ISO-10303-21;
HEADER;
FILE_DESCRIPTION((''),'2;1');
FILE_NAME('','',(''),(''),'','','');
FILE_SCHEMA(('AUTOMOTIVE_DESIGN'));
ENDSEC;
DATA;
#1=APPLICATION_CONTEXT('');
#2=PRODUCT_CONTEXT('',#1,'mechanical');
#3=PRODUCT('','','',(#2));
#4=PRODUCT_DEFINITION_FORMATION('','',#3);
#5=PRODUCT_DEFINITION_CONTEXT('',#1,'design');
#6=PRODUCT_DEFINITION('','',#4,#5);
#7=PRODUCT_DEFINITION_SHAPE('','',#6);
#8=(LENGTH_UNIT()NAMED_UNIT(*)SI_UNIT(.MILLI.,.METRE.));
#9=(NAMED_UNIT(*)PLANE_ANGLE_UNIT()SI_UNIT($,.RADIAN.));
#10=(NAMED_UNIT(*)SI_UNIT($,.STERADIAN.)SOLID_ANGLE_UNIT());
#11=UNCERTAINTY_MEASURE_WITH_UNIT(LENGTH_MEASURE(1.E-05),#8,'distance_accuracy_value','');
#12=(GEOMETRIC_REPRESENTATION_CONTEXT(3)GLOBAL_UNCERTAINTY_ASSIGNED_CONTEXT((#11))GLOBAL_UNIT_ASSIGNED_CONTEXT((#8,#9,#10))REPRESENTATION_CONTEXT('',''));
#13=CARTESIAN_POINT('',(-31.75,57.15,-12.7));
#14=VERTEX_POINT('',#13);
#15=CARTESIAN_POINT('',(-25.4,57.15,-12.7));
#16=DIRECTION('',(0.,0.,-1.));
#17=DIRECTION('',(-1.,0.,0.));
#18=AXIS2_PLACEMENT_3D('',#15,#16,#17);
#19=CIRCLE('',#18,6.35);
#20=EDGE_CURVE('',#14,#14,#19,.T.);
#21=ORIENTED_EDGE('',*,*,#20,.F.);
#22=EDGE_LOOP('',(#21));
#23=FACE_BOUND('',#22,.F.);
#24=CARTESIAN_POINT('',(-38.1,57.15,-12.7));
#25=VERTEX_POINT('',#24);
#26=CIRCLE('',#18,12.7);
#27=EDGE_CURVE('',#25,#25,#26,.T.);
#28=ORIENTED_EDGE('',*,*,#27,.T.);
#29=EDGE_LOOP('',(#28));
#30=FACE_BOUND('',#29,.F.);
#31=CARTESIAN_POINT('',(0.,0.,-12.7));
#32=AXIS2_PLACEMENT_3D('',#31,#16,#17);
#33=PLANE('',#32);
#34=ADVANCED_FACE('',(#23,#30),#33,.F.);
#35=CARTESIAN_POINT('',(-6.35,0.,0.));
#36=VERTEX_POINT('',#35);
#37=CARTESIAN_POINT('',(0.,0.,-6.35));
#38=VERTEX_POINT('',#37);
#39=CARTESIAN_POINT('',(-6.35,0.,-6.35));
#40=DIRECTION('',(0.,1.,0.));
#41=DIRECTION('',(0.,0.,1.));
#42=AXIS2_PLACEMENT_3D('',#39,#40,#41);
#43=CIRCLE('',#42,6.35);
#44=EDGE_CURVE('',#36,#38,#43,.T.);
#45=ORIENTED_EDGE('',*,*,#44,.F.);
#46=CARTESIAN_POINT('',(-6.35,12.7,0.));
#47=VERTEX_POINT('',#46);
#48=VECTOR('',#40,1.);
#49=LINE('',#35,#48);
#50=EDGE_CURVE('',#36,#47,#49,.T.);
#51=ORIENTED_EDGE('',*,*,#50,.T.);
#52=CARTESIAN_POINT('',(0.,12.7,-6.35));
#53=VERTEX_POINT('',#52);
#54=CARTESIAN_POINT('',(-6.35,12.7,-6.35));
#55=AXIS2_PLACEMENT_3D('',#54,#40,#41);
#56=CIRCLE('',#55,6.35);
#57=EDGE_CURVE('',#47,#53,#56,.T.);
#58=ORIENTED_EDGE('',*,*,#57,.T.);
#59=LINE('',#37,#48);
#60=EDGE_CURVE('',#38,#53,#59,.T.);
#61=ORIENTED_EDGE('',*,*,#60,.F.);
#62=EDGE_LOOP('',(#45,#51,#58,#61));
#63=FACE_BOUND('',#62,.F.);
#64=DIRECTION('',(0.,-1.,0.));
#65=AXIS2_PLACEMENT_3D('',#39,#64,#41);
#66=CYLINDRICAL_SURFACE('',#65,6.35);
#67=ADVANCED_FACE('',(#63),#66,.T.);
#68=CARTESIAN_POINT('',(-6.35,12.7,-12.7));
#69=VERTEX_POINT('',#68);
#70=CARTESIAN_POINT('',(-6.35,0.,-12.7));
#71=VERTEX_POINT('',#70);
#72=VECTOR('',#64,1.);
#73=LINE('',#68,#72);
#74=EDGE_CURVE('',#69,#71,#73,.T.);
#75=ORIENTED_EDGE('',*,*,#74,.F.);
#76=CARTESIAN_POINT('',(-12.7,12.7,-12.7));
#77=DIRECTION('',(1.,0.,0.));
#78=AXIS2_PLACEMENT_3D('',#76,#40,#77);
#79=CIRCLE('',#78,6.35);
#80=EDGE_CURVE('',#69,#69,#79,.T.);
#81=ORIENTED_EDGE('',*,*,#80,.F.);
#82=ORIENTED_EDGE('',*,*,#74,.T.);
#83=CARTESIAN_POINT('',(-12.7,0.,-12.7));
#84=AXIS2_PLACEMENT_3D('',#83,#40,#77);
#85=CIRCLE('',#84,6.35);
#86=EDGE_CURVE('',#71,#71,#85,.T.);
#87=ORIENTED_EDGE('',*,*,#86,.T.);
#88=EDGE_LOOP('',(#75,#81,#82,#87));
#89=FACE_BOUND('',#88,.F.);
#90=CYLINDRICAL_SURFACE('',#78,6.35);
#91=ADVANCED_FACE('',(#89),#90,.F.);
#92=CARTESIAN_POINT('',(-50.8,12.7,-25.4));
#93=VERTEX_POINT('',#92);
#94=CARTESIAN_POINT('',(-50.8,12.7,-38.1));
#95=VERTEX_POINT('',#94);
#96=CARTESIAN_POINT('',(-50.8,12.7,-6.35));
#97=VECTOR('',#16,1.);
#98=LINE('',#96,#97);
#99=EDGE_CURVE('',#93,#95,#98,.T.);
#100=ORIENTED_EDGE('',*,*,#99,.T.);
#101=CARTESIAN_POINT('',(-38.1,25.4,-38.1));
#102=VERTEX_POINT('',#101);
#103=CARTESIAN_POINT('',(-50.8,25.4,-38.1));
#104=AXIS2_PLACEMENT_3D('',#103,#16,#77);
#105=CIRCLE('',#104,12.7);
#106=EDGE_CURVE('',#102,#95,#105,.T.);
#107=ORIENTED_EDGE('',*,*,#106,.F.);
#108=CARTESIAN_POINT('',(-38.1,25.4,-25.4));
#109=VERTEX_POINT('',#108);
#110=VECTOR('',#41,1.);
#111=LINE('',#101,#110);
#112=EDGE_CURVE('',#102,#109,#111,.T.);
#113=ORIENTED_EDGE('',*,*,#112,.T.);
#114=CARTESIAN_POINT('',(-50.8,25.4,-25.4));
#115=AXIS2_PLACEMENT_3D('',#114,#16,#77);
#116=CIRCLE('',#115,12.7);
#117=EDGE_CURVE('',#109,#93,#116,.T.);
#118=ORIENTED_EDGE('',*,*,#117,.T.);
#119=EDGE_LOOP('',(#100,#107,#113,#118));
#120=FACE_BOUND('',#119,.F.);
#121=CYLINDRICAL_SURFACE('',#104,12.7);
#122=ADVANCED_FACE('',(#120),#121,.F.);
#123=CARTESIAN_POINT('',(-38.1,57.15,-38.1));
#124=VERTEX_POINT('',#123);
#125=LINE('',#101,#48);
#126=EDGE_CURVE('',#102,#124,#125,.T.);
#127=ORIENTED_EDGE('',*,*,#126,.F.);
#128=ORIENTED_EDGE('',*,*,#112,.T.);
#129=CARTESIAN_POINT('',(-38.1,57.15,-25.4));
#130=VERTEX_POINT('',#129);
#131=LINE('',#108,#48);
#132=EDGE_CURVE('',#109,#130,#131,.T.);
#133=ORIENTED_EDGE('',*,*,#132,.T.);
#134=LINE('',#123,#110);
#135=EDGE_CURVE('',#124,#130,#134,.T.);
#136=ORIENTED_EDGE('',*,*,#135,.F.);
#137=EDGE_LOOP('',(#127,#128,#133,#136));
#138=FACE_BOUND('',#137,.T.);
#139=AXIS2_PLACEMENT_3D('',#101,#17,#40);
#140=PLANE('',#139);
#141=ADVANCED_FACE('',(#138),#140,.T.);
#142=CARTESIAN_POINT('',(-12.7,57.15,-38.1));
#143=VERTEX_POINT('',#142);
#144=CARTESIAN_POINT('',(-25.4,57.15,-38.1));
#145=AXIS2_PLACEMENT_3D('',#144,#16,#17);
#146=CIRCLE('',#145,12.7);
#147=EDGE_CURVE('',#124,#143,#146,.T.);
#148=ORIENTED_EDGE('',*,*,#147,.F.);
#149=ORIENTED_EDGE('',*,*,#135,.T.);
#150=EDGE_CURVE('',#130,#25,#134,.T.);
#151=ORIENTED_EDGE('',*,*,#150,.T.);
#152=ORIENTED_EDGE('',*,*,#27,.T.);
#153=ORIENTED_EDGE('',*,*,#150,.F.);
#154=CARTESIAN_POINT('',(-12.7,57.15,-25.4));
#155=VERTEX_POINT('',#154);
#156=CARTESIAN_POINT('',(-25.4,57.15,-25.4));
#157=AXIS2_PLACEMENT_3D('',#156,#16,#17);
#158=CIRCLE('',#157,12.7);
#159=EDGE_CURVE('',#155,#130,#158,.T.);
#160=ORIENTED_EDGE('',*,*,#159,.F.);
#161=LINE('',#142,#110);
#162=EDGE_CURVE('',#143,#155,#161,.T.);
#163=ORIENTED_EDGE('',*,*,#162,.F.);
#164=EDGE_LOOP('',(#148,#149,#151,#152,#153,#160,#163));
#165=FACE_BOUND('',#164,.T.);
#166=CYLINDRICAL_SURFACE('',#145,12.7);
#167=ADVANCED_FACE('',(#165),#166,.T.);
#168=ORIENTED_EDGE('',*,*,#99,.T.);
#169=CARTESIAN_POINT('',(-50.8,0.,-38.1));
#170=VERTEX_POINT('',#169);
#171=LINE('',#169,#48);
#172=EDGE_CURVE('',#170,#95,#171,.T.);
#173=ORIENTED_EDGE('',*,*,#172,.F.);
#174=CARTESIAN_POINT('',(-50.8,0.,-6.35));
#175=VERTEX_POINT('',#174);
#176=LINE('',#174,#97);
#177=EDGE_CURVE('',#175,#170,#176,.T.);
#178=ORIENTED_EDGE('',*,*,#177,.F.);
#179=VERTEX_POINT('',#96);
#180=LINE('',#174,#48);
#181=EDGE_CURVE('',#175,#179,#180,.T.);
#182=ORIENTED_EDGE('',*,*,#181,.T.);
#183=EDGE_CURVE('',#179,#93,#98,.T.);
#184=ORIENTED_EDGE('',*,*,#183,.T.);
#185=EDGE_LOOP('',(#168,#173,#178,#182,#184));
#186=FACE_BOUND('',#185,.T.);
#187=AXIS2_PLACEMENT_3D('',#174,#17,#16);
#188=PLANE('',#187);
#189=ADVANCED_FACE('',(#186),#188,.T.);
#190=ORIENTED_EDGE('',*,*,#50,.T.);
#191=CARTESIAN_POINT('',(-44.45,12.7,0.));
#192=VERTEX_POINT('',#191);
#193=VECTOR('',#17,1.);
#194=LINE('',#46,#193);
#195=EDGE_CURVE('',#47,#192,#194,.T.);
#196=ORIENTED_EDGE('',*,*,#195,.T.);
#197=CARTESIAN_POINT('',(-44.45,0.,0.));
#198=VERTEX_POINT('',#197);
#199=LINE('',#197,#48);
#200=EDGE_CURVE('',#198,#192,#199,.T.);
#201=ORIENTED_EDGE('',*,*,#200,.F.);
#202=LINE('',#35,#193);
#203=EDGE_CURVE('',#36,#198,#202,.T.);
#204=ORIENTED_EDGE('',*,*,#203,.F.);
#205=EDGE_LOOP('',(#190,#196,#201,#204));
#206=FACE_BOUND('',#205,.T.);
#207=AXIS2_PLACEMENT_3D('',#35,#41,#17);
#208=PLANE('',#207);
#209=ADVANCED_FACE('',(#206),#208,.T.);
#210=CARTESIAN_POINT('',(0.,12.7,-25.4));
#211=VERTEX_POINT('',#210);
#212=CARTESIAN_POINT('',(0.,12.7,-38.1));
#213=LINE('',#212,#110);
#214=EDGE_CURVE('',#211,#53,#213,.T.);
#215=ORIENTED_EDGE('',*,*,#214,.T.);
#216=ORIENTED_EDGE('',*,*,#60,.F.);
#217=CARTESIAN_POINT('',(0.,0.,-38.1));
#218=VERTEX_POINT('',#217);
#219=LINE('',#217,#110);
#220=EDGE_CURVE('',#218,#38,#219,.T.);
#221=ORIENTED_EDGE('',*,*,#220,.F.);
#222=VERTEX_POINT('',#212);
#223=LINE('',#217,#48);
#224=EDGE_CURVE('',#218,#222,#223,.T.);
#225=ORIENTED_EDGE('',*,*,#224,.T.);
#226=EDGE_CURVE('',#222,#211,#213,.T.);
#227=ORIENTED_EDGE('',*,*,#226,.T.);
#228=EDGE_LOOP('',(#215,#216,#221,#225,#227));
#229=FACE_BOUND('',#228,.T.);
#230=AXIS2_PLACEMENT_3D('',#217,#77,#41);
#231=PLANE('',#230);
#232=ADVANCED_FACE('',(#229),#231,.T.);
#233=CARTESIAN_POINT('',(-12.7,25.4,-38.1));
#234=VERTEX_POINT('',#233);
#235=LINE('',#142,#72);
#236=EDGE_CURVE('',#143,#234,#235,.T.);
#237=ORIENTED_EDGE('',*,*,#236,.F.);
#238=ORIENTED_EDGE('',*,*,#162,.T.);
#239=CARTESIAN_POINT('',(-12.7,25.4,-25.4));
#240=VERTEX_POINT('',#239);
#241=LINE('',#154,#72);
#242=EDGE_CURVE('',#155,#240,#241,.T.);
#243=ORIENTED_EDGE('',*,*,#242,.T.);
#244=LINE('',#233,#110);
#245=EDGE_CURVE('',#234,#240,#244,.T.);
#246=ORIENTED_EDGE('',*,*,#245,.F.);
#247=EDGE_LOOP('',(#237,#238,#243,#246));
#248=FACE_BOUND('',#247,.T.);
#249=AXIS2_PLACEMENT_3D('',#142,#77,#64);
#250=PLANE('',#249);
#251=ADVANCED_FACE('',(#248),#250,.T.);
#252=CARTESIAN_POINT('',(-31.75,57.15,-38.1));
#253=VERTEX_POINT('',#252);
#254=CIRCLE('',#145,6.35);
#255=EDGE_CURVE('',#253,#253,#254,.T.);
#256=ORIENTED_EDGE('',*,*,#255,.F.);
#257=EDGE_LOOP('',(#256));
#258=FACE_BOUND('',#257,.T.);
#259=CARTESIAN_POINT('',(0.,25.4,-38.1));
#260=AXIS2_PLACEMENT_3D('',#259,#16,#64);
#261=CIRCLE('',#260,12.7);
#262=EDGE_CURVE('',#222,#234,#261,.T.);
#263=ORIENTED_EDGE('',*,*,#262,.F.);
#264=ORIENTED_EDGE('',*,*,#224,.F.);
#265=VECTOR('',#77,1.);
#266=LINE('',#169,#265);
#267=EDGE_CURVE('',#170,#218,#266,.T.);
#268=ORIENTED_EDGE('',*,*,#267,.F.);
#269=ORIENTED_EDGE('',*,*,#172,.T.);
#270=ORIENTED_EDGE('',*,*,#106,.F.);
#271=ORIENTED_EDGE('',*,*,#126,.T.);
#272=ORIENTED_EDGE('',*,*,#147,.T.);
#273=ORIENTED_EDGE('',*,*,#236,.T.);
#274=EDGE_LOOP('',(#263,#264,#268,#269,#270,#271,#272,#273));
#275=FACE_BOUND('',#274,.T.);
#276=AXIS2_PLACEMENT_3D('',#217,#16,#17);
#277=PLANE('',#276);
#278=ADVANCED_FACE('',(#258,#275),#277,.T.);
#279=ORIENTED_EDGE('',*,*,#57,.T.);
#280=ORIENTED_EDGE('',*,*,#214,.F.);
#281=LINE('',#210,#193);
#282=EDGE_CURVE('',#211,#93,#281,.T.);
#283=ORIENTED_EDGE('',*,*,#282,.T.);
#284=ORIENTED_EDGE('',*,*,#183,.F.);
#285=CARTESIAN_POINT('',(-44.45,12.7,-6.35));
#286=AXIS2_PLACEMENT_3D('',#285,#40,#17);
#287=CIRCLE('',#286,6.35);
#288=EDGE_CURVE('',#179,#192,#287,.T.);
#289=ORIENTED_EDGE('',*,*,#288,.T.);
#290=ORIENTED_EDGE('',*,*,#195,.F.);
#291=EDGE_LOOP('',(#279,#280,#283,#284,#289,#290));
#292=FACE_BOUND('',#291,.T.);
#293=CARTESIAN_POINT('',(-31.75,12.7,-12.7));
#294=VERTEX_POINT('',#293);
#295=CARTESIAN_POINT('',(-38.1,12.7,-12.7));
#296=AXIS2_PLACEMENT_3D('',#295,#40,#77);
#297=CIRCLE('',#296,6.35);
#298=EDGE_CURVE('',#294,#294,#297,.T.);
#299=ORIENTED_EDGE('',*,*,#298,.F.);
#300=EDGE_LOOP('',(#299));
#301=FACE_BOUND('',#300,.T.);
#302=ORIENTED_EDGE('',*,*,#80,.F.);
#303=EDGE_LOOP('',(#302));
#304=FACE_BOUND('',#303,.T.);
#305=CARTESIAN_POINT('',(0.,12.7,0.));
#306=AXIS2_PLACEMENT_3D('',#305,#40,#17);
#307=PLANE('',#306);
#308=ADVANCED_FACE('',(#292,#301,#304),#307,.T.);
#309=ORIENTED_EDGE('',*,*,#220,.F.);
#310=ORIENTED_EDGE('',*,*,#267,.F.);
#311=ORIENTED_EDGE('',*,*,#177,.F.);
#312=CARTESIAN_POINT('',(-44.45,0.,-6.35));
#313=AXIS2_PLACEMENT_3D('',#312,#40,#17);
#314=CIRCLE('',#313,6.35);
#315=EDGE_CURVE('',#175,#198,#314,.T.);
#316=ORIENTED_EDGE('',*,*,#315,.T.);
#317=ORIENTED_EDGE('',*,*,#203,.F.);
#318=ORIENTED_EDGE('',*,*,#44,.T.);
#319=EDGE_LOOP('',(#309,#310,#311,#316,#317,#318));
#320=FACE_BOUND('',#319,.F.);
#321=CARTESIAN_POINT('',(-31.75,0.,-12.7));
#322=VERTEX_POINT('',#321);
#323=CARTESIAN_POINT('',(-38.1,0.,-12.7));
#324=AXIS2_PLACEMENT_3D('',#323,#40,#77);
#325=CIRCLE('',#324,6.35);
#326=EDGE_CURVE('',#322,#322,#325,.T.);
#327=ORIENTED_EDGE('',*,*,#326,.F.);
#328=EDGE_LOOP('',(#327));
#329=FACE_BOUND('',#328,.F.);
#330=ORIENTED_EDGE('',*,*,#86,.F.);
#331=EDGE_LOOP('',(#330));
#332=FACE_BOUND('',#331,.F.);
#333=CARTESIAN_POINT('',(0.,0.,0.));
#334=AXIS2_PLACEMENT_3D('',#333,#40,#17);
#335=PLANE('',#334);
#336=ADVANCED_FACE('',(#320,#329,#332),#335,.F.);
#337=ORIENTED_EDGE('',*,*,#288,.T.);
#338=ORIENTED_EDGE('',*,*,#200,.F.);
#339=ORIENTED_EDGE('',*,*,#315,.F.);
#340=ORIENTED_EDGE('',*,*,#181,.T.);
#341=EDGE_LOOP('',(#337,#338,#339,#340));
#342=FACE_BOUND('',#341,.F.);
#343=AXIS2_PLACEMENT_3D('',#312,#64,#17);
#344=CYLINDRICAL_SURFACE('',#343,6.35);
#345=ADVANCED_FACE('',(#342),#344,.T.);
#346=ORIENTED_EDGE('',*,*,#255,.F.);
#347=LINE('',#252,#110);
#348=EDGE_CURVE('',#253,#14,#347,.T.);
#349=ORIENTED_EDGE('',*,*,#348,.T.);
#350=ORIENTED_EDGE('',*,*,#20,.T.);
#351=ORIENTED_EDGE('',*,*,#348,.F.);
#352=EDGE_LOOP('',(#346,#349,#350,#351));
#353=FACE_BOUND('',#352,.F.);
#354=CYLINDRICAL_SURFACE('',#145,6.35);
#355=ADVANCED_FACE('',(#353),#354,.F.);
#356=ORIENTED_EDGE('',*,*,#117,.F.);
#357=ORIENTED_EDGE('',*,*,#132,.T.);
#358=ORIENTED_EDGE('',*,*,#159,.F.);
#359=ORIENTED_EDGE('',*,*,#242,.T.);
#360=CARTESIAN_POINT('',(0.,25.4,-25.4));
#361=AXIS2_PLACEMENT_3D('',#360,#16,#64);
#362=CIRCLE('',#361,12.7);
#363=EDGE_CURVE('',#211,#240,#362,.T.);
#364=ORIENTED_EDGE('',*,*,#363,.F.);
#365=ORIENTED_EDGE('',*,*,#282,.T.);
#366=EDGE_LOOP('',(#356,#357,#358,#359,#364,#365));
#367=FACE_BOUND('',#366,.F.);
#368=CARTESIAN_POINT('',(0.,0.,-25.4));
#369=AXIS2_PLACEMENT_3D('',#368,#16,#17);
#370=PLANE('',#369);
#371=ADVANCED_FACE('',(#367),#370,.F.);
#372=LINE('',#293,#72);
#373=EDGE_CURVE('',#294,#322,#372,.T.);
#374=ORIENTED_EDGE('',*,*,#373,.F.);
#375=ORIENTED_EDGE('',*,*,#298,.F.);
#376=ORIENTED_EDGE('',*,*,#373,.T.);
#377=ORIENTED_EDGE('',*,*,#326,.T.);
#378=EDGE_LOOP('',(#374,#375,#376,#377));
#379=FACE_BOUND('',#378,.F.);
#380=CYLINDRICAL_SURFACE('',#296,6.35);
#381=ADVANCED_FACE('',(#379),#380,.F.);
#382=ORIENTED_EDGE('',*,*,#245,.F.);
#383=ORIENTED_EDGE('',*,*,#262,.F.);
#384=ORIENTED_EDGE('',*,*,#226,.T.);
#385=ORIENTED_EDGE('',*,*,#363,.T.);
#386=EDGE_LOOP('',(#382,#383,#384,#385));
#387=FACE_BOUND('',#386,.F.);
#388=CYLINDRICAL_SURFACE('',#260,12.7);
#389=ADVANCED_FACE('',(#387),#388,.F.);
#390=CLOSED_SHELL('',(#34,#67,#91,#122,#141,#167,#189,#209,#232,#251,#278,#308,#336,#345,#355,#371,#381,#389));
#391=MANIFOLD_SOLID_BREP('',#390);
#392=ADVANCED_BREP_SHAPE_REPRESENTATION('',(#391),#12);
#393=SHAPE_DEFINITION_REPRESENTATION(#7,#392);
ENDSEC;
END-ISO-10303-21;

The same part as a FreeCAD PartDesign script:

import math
import FreeCAD as App
import Part
import Sketcher
from FreeCAD import Vector
Q = App.Units.Quantity

doc = App.newDocument("Part")
body = doc.addObject("PartDesign::Body", "Body")

# Sketch on XZ plane
sketch1 = body.newObject("Sketcher::SketchObject", "Sketch")
sketch1.AttachmentSupport = (doc.getObject("XZ_Plane"), [""])
sketch1.MapMode = "FlatFace"
sketch1.addGeometry(Part.LineSegment(Vector(-44.45, 0, 0), Vector(-6.35, 0, 0)), False)
sketch1.addGeometry(Part.ArcOfCircle(Part.Circle(Vector(-6.35, -6.35, 0), Vector(0, 0, 1), 6.35), math.radians(0), math.radians(90)), False)
sketch1.addGeometry(Part.LineSegment(Vector(0, -6.35, 0), Vector(0, -38.1, 0)), False)
sketch1.addGeometry(Part.LineSegment(Vector(0, -38.1, 0), Vector(-50.8, -38.1, 0)), False)
sketch1.addGeometry(Part.LineSegment(Vector(-50.8, -38.1, 0), Vector(-50.8, -6.35, 0)), False)
sketch1.addGeometry(Part.ArcOfCircle(Part.Circle(Vector(-44.45, -6.35, 0), Vector(0, 0, 1), 6.35), math.radians(90), math.radians(180)), False)
sketch1.addConstraint(Sketcher.Constraint("Tangent", 0, 2, 1, 2))
sketch1.addConstraint(Sketcher.Constraint("Tangent", 1, 1, 2, 1))
sketch1.addConstraint(Sketcher.Constraint("Coincident", 2, 2, 3, 1))
sketch1.addConstraint(Sketcher.Constraint("Coincident", 3, 2, 4, 1))
sketch1.addConstraint(Sketcher.Constraint("Tangent", 4, 2, 5, 2))
sketch1.addConstraint(Sketcher.Constraint("Tangent", 5, 1, 0, 1))
sketch1.addConstraint(Sketcher.Constraint("Horizontal", 0))
sketch1.addConstraint(Sketcher.Constraint("Vertical", 2))
sketch1.addConstraint(Sketcher.Constraint("Horizontal", 3))
sketch1.addConstraint(Sketcher.Constraint("Vertical", 4))
sketch1.addConstraint(Sketcher.Constraint("Equal", 1, 5))
sketch1.addConstraint(Sketcher.Constraint("PointOnObject", 0, 2, -1))
sketch1.addConstraint(Sketcher.Constraint("PointOnObject", 1, 1, -2))
sketch1.addConstraint(Sketcher.Constraint("DistanceX", 3, 2, 3, 1, Q("2 in")))
sketch1.addConstraint(Sketcher.Constraint("Radius", 1, Q("0.25 in")))
sketch1.addConstraint(Sketcher.Constraint("DistanceY", 2, 2, -1, 1, Q("1.5 in")))
pad1 = body.newObject("PartDesign::Pad", "Pad")
pad1.Profile = sketch1
pad1.Length = Q("0.5 in")
pad1.Reversed = True

# Sketch on XY plane
sketch2 = body.newObject("Sketcher::SketchObject", "Sketch001")
sketch2.AttachmentSupport = (doc.getObject("XY_Plane"), [""])
sketch2.MapMode = "FlatFace"
sketch2.AttachmentOffset = App.Placement(Vector(0, 0, -1.5 * 25.4), App.Rotation())
sketch2.addGeometry(Part.LineSegment(Vector(-38.1, 25.4, 0), Vector(-38.1, 57.15, 0)), False)
sketch2.addGeometry(Part.ArcOfCircle(Part.Circle(Vector(-25.4, 57.15, 0), Vector(0, 0, 1), 12.7), math.radians(180), math.radians(360)), False)
sketch2.addGeometry(Part.LineSegment(Vector(-12.7, 57.15, 0), Vector(-12.7, 25.4, 0)), False)
sketch2.addGeometry(Part.ArcOfCircle(Part.Circle(Vector(0, 25.4, 0), Vector(0, 0, 1), 12.7), math.radians(180), math.radians(270)), False)
sketch2.addGeometry(Part.LineSegment(Vector(0, 12.7, 0), Vector(-50.8, 12.7, 0)), False)
sketch2.addGeometry(Part.ArcOfCircle(Part.Circle(Vector(-50.8, 25.4, 0), Vector(0, 0, 1), 12.7), math.radians(-90), math.radians(0)), False)
sketch2.addConstraint(Sketcher.Constraint("Tangent", 0, 2, 1, 1))
sketch2.addConstraint(Sketcher.Constraint("Tangent", 1, 2, 2, 1))
sketch2.addConstraint(Sketcher.Constraint("Tangent", 2, 2, 3, 1))
sketch2.addConstraint(Sketcher.Constraint("Tangent", 3, 2, 4, 1))
sketch2.addConstraint(Sketcher.Constraint("Tangent", 4, 2, 5, 1))
sketch2.addConstraint(Sketcher.Constraint("Tangent", 5, 2, 0, 1))
sketch2.addConstraint(Sketcher.Constraint("Vertical", 0))
sketch2.addConstraint(Sketcher.Constraint("Vertical", 2))
sketch2.addConstraint(Sketcher.Constraint("Horizontal", 4))
sketch2.addConstraint(Sketcher.Constraint("Equal", 1, 3))
sketch2.addConstraint(Sketcher.Constraint("Equal", 3, 5))
sketch2.addConstraint(Sketcher.Constraint("PointOnObject", 3, 3, -2))
sketch2.addConstraint(Sketcher.Constraint("Radius", 1, Q("0.5 in")))
sketch2.addConstraint(Sketcher.Constraint("DistanceY", -1, 1, 3, 3, Q("1 in")))
sketch2.addConstraint(Sketcher.Constraint("DistanceY", 3, 2, 1, 2, Q("1.75 in")))
pad2 = body.newObject("PartDesign::Pad", "Pad001")
pad2.Profile = sketch2
pad2.Length = Q("0.5 in")

# Sketch on XY plane
sketch3 = body.newObject("Sketcher::SketchObject", "Sketch002")
sketch3.AttachmentSupport = (doc.getObject("XY_Plane"), [""])
sketch3.MapMode = "FlatFace"
sketch3.AttachmentOffset = App.Placement(Vector(0, 0, -1.5 * 25.4), App.Rotation())
sketch3.addGeometry(Part.Circle(Vector(-25.4, 57.15, 0), Vector(0, 0, 1), 12.7), False)
sketch3.addGeometry(Part.Circle(Vector(-25.4, 57.15, 0), Vector(0, 0, 1), 6.35), False)
sketch3.addConstraint(Sketcher.Constraint("Coincident", 1, 3, 0, 3))
sketch3.addConstraint(Sketcher.Constraint("Diameter", 0, Q("1 in")))
sketch3.addConstraint(Sketcher.Constraint("Diameter", 1, Q("0.5 in")))
sketch3.addConstraint(Sketcher.Constraint("DistanceX", 0, 3, -1, 1, Q("1 in")))
sketch3.addConstraint(Sketcher.Constraint("DistanceY", -1, 1, 0, 3, Q("2.25 in")))
pad3 = body.newObject("PartDesign::Pad", "Pad002")
pad3.Profile = sketch3
pad3.Length = Q("1 in")

# Sketch on XZ plane
sketch4 = body.newObject("Sketcher::SketchObject", "Sketch003")
sketch4.AttachmentSupport = (doc.getObject("XZ_Plane"), [""])
sketch4.MapMode = "FlatFace"
sketch4.AttachmentOffset = App.Placement(Vector(0, 0, -0.5 * 25.4), App.Rotation())
sketch4.addGeometry(Part.Circle(Vector(-38.1, -12.7, 0), Vector(0, 0, 1), 6.35), False)
sketch4.addGeometry(Part.Circle(Vector(-12.7, -12.7, 0), Vector(0, 0, 1), 6.35), False)
sketch4.addConstraint(Sketcher.Constraint("Equal", 0, 1))
sketch4.addConstraint(Sketcher.Constraint("Horizontal", 0, 3, 1, 3))
sketch4.addConstraint(Sketcher.Constraint("Diameter", 0, Q("0.5 in")))
sketch4.addConstraint(Sketcher.Constraint("DistanceY", 0, 3, -1, 1, Q("0.5 in")))
sketch4.addConstraint(Sketcher.Constraint("DistanceX", 1, 3, -1, 1, Q("0.5 in")))
sketch4.addConstraint(Sketcher.Constraint("DistanceX", 0, 3, 1, 3, Q("1 in")))
pocket1 = body.newObject("PartDesign::Pocket", "Pocket")
pocket1.Profile = sketch4
pocket1.Type = "ThroughAll"
pocket1.Reversed = True

doc.recompute()
